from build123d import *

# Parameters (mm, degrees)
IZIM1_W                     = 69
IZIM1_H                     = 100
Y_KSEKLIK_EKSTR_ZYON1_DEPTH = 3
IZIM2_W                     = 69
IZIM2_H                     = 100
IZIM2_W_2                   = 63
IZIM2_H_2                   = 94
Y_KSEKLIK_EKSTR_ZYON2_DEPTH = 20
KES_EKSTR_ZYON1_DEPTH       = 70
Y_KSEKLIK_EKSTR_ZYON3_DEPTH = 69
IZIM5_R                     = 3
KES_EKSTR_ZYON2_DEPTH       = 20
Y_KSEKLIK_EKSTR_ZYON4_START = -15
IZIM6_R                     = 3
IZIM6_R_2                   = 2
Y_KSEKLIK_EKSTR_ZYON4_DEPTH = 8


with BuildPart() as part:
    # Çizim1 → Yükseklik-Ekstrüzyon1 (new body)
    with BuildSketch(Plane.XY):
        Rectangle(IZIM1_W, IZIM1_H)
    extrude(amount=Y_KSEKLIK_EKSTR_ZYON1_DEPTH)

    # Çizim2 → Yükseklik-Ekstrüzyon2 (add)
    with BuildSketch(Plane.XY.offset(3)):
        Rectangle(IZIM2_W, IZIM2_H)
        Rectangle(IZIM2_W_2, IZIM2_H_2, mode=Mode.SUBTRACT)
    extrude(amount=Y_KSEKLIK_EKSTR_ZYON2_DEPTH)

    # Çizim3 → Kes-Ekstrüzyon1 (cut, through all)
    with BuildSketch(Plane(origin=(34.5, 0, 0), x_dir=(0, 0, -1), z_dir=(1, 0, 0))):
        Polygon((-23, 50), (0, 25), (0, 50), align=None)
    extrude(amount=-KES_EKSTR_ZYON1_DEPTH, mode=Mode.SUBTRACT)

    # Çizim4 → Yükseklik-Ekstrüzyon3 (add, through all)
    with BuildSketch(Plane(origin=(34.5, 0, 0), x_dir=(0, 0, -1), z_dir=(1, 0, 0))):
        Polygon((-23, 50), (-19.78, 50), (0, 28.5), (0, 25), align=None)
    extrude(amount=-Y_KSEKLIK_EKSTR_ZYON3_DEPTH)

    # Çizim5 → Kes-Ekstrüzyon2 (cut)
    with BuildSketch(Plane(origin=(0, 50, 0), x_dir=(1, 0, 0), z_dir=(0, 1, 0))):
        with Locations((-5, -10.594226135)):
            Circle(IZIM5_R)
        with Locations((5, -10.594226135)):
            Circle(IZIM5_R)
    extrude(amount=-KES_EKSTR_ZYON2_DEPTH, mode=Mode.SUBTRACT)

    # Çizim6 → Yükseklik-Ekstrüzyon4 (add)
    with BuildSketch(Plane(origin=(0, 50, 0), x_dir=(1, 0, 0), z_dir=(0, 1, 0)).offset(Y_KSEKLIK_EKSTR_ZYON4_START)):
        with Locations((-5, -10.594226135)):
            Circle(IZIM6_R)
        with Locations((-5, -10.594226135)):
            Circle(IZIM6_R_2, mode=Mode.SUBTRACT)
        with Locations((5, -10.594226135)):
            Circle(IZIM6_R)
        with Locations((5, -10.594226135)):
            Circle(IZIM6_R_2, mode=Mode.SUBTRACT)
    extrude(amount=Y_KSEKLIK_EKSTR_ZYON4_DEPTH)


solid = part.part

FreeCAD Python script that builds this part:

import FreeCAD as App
import Part
import Sketcher
from FreeCAD import Vector
Q = App.Units.Quantity

doc = App.newDocument("Part")
body = doc.addObject("PartDesign::Body", "Body")

# Sketch on XY plane
sketch1 = body.newObject("Sketcher::SketchObject", "Sketch")
sketch1.AttachmentSupport = (doc.getObject("XY_Plane"), [""])
sketch1.MapMode = "FlatFace"
sketch1.addGeometry([
    Part.LineSegment(Vector(-34, 50, 0), Vector(-34, -50, 0)),
    Part.LineSegment(Vector(-34, -50, 0), Vector(34, -50, 0)),
    Part.LineSegment(Vector(34, -50, 0), Vector(34, 50, 0)),
    Part.LineSegment(Vector(34, 50, 0), Vector(-34, 50, 0)),
], False)
sketch1.addConstraint([
    Sketcher.Constraint("Coincident", 0, 2, 1, 1),
    Sketcher.Constraint("Coincident", 1, 2, 2, 1),
    Sketcher.Constraint("Coincident", 2, 2, 3, 1),
    Sketcher.Constraint("Coincident", 3, 2, 0, 1),
    Sketcher.Constraint("Vertical", 0),
    Sketcher.Constraint("Horizontal", 1),
    Sketcher.Constraint("Vertical", 2),
    Sketcher.Constraint("Horizontal", 3),
    Sketcher.Constraint("Symmetric", 0, 2, 2, 2, -1, 1),
    Sketcher.Constraint("DistanceX", 1, 1, 1, 2, Q("69 mm")),
    Sketcher.Constraint("DistanceY", 0, 2, 0, 1, Q("100 mm")),
])
pad1 = body.newObject("PartDesign::Pad", "Pad")
pad1.Profile = sketch1
pad1.Length = 3

# Sketch on XY plane
sketch2 = body.newObject("Sketcher::SketchObject", "Sketch001")
sketch2.AttachmentSupport = (doc.getObject("XY_Plane"), [""])
sketch2.MapMode = "FlatFace"
sketch2.AttachmentOffset = App.Placement(Vector(0, 0, 3), App.Rotation())
sketch2.addGeometry([
    Part.LineSegment(Vector(-34, 50, 0), Vector(-34, -50, 0)),  # 0
    Part.LineSegment(Vector(-34, -50, 0), Vector(34, -50, 0)),  # 1
    Part.LineSegment(Vector(34, -50, 0), Vector(34, 50, 0)),  # 2
    Part.LineSegment(Vector(34, 50, 0), Vector(-34, 50, 0)),  # 3
    Part.LineSegment(Vector(32, -47, 0), Vector(-32, -47, 0)),  # 4
    Part.LineSegment(Vector(-32, -47, 0), Vector(-32, 47, 0)),  # 5
    Part.LineSegment(Vector(-32, 47, 0), Vector(32, 47, 0)),  # 6
    Part.LineSegment(Vector(32, 47, 0), Vector(32, -47, 0)),  # 7
], False)
sketch2.addConstraint([
    Sketcher.Constraint("Coincident", 0, 2, 1, 1),
    Sketcher.Constraint("Coincident", 1, 2, 2, 1),
    Sketcher.Constraint("Coincident", 2, 2, 3, 1),
    Sketcher.Constraint("Coincident", 3, 2, 0, 1),
    Sketcher.Constraint("Coincident", 4, 2, 5, 1),
    Sketcher.Constraint("Coincident", 5, 2, 6, 1),
    Sketcher.Constraint("Coincident", 6, 2, 7, 1),
    Sketcher.Constraint("Coincident", 7, 2, 4, 1),
    Sketcher.Constraint("Vertical", 0),
    Sketcher.Constraint("Horizontal", 1),
    Sketcher.Constraint("Vertical", 2),
    Sketcher.Constraint("Horizontal", 3),
    Sketcher.Constraint("Horizontal", 4),
    Sketcher.Constraint("Vertical", 5),
    Sketcher.Constraint("Horizontal", 6),
    Sketcher.Constraint("Vertical", 7),
    Sketcher.Constraint("Symmetric", 0, 2, 2, 2, -1, 1),
    Sketcher.Constraint("Symmetric", 4, 2, 6, 2, -1, 1),
    Sketcher.Constraint("DistanceX", 1, 1, 1, 2, Q("69 mm")),
    Sketcher.Constraint("DistanceX", 4, 2, 4, 1, Q("63 mm")),
    Sketcher.Constraint("DistanceY", 0, 2, 0, 1, Q("100 mm")),
    Sketcher.Constraint("DistanceY", 5, 1, 5, 2, Q("94 mm")),
])
pad2 = body.newObject("PartDesign::Pad", "Pad001")
pad2.Profile = sketch2
pad2.Length = 20

# Sketch on YZ plane
sketch3 = body.newObject("Sketcher::SketchObject", "Sketch002")
sketch3.AttachmentSupport = (doc.getObject("YZ_Plane"), [""])
sketch3.MapMode = "FlatFace"
sketch3.AttachmentOffset = App.Placement(Vector(0, 0, 34.5), App.Rotation())
sketch3.addGeometry([
    Part.LineSegment(Vector(50, 23, 0), Vector(25, 0, 0)),
    Part.LineSegment(Vector(25, 0, 0), Vector(50, 0, 0)),
    Part.LineSegment(Vector(50, 0, 0), Vector(50, 23, 0)),
], False)
sketch3.addConstraint([
    Sketcher.Constraint("Coincident", 0, 2, 1, 1),
    Sketcher.Constraint("Coincident", 1, 2, 2, 1),
    Sketcher.Constraint("Coincident", 2, 2, 0, 1),
    Sketcher.Constraint("Horizontal", 1),
    Sketcher.Constraint("Vertical", 2),
    Sketcher.Constraint("PointOnObject", 0, 2, -1),
    Sketcher.Constraint("DistanceX", 1, 1, 1, 2, Q("25 mm")),
    Sketcher.Constraint("DistanceY", 2, 1, 2, 2, Q("23 mm")),
    Sketcher.Constraint("DistanceX", -1, 1, 0, 2, Q("25 mm")),
])
pocket1 = body.newObject("PartDesign::Pocket", "Pocket")
pocket1.Profile = sketch3
pocket1.Type = "ThroughAll"

# Sketch on YZ plane
sketch4 = body.newObject("Sketcher::SketchObject", "Sketch003")
sketch4.AttachmentSupport = (doc.getObject("YZ_Plane"), [""])
sketch4.MapMode = "FlatFace"
sketch4.AttachmentOffset = App.Placement(Vector(0, 0, 34.5), App.Rotation())
sketch4.addGeometry([
    Part.LineSegment(Vector(50, 19.8, 0), Vector(50, 23, 0)),
    Part.LineSegment(Vector(50, 23, 0), Vector(25, 0, 0)),
    Part.LineSegment(Vector(25, 0, 0), Vector(28.5, 0, 0)),
    Part.LineSegment(Vector(28.5, 0, 0), Vector(50, 19.8, 0)),
], False)
sketch4.addConstraint([
    Sketcher.Constraint("Coincident", 0, 2, 1, 1),
    Sketcher.Constraint("Coincident", 1, 2, 2, 1),
    Sketcher.Constraint("Coincident", 2, 2, 3, 1),
    Sketcher.Constraint("Coincident", 3, 2, 0, 1),
    Sketcher.Constraint("Vertical", 0),
    Sketcher.Constraint("Horizontal", 2),
    Sketcher.Constraint("PointOnObject", 1, 2, -1),
    Sketcher.Constraint("Parallel", 1, 3),
    Sketcher.Constraint("DistanceX", 2, 1, 2, 2, Q("3.5 mm")),
    Sketcher.Constraint("DistanceX", -1, 1, 0, 2, Q("50 mm")),
    Sketcher.Constraint("DistanceY", -1, 1, 0, 2, Q("23 mm")),
    Sketcher.Constraint("DistanceX", -1, 1, 1, 2, Q("25 mm")),
])
pad3 = body.newObject("PartDesign::Pad", "Pad002")
pad3.Profile = sketch4
pad3.Length = 69
pad3.Reversed = True

# Sketch on XZ plane
sketch5 = body.newObject("Sketcher::SketchObject", "Sketch004")
sketch5.AttachmentSupport = (doc.getObject("XZ_Plane"), [""])
sketch5.MapMode = "FlatFace"
sketch5.AttachmentOffset = App.Placement(Vector(0, 0, -50), App.Rotation())
sketch5.addGeometry([
    Part.Circle(Vector(-5, 10.6, 0), Vector(0, 0, 1), 3),
    Part.Circle(Vector(5, 10.6, 0), Vector(0, 0, 1), 3),
], False)
sketch5.addConstraint([
    Sketcher.Constraint("Equal", 0, 1),
    Sketcher.Constraint("Symmetric", 0, 3, 1, 3, -2),
    Sketcher.Constraint("Diameter", 0, Q("6 mm")),
    Sketcher.Constraint("DistanceX", 0, 3, -1, 1, Q("5 mm")),
    Sketcher.Constraint("DistanceY", -1, 1, 0, 3, Q("10.594226 mm")),
])
pocket2 = body.newObject("PartDesign::Pocket", "Pocket001")
pocket2.Profile = sketch5
pocket2.Length = 20
pocket2.Reversed = True

# Sketch on XZ plane
sketch6 = body.newObject("Sketcher::SketchObject", "Sketch005")
sketch6.AttachmentSupport = (doc.getObject("XZ_Plane"), [""])
sketch6.MapMode = "FlatFace"
sketch6.AttachmentOffset = App.Placement(Vector(0, 0, -35), App.Rotation())
sketch6.addGeometry([
    Part.Circle(Vector(-5, 10.6, 0), Vector(0, 0, 1), 3),
    Part.Circle(Vector(-5, 10.6, 0), Vector(0, 0, 1), 2),
    Part.Circle(Vector(5, 10.6, 0), Vector(0, 0, 1), 3),
    Part.Circle(Vector(5, 10.6, 0), Vector(0, 0, 1), 2),
], False)
sketch6.addConstraint([
    Sketcher.Constraint("Coincident", 1, 3, 0, 3),
    Sketcher.Constraint("Coincident", 3, 3, 2, 3),
    Sketcher.Constraint("Equal", 0, 2),
    Sketcher.Constraint("Equal", 1, 3),
    Sketcher.Constraint("Symmetric", 0, 3, 2, 3, -2),
    Sketcher.Constraint("Diameter", 0, Q("6 mm")),
    Sketcher.Constraint("Diameter", 1, Q("4 mm")),
    Sketcher.Constraint("DistanceX", 0, 3, -1, 1, Q("5 mm")),
    Sketcher.Constraint("DistanceY", -1, 1, 0, 3, Q("10.594226 mm")),
])
pad4 = body.newObject("PartDesign::Pad", "Pad003")
pad4.Profile = sketch6
pad4.Length = 8
pad4.Reversed = True

doc.recompute()
